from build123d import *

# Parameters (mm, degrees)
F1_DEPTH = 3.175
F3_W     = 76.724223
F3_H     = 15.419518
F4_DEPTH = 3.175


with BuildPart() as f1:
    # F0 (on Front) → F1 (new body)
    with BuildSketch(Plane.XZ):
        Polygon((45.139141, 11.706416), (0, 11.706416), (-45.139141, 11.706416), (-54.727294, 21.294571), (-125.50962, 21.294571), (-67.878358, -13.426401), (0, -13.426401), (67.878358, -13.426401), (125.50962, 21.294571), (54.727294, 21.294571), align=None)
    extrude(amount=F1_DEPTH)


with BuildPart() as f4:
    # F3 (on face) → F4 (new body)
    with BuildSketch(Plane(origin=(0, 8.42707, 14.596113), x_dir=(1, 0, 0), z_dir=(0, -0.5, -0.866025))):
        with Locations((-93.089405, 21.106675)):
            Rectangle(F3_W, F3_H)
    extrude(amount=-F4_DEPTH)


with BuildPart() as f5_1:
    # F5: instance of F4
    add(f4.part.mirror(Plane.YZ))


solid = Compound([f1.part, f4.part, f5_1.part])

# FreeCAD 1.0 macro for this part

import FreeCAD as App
import Part
import Sketcher

V = App.Vector
Q = App.Units.Quantity

doc = App.newDocument("Part")
body = doc.addObject("PartDesign::Body", "Body")

# Sketch on XZ plane
sketch1 = body.newObject("Sketcher::SketchObject", "Sketch")
sketch1.AttachmentSupport = (doc.getObject("XZ_Plane"), [""])
sketch1.MapMode = "FlatFace"
sketch1.addGeometry(Part.LineSegment(V(45, 12, 0), V(-45, 12, 0)), False)
sketch1.addGeometry(Part.LineSegment(V(-45, 12, 0), V(-55, 21, 0)), False)
sketch1.addGeometry(Part.LineSegment(V(-55, 21, 0), V(-126, 21, 0)), False)
sketch1.addGeometry(Part.LineSegment(V(-126, 21, 0), V(-68, -13, 0)), False)
sketch1.addGeometry(Part.LineSegment(V(-68, -13, 0), V(68, -13, 0)), False)
sketch1.addGeometry(Part.LineSegment(V(68, -13, 0), V(126, 21, 0)), False)
sketch1.addGeometry(Part.LineSegment(V(126, 21, 0), V(55, 21, 0)), False)
sketch1.addGeometry(Part.LineSegment(V(55, 21, 0), V(45, 12, 0)), False)
sketch1.addConstraint(Sketcher.Constraint("Coincident", 0, 2, 1, 1))
sketch1.addConstraint(Sketcher.Constraint("Coincident", 1, 2, 2, 1))
sketch1.addConstraint(Sketcher.Constraint("Coincident", 2, 2, 3, 1))
sketch1.addConstraint(Sketcher.Constraint("Coincident", 3, 2, 4, 1))
sketch1.addConstraint(Sketcher.Constraint("Coincident", 4, 2, 5, 1))
sketch1.addConstraint(Sketcher.Constraint("Coincident", 5, 2, 6, 1))
sketch1.addConstraint(Sketcher.Constraint("Coincident", 6, 2, 7, 1))
sketch1.addConstraint(Sketcher.Constraint("Coincident", 7, 2, 0, 1))
sketch1.addConstraint(Sketcher.Constraint("Horizontal", 0))
sketch1.addConstraint(Sketcher.Constraint("Horizontal", 2))
sketch1.addConstraint(Sketcher.Constraint("Horizontal", 4))
sketch1.addConstraint(Sketcher.Constraint("Horizontal", 6))
sketch1.addConstraint(Sketcher.Constraint("Symmetric", 2, 2, 5, 2, -2))
sketch1.addConstraint(Sketcher.Constraint("Perpendicular", 1, 7))
sketch1.addConstraint(Sketcher.Constraint("Equal", 2, 6))
sketch1.addConstraint(Sketcher.Constraint("Equal", 3, 5))
sketch1.addConstraint(Sketcher.Constraint("Equal", 1, 7))
sketch1.addConstraint(Sketcher.Constraint("DistanceX", 2, 2, 4, 2, Q("7.6136999 in")))
sketch1.addConstraint(Sketcher.Constraint("DistanceY", 3, 2, -1, 1, Q("13.426401 mm")))
sketch1.addConstraint(Sketcher.Constraint("DistanceX", 0, 2, 4, 2, Q("113.017499 mm")))
sketch1.addConstraint(Sketcher.Constraint("DistanceX", 0, 2, 0, 1, Q("90.278282 mm")))
sketch1.addConstraint(Sketcher.Constraint("DistanceX", 2, 2, 2, 1, Q("70.782326 mm")))
sketch1.addConstraint(Sketcher.Constraint("DistanceY", -1, 1, 1, 2, Q("21.294571 mm")))
pad1 = body.newObject("PartDesign::Pad", "Pad")
pad1.Profile = sketch1
pad1.Length = Q("0.125 in")
body2 = doc.addObject("PartDesign::Body", "Body001")

# Sketch on an angled plane
sketch2 = body2.newObject("Sketcher::SketchObject", "Sketch001")
sketch2.Placement = App.Placement(V(0, 8.42707, 14.596113), App.Rotation(V(1, 0, 0), V(0, -0.866025303, 0.500000175), V(0, -0.500000175, -0.866025303), "ZXY"))
sketch2.addGeometry(Part.LineSegment(V(-131, 29, 0), V(-131, 13, 0)), False)
sketch2.addGeometry(Part.LineSegment(V(-131, 13, 0), V(-55, 13, 0)), False)
sketch2.addGeometry(Part.LineSegment(V(-55, 13, 0), V(-55, 29, 0)), False)
sketch2.addGeometry(Part.LineSegment(V(-55, 29, 0), V(-131, 29, 0)), False)
sketch2.addConstraint(Sketcher.Constraint("Coincident", 0, 2, 1, 1))
sketch2.addConstraint(Sketcher.Constraint("Coincident", 1, 2, 2, 1))
sketch2.addConstraint(Sketcher.Constraint("Coincident", 2, 2, 3, 1))
sketch2.addConstraint(Sketcher.Constraint("Coincident", 3, 2, 0, 1))
sketch2.addConstraint(Sketcher.Constraint("Vertical", 0))
sketch2.addConstraint(Sketcher.Constraint("Horizontal", 1))
sketch2.addConstraint(Sketcher.Constraint("Vertical", 2))
sketch2.addConstraint(Sketcher.Constraint("Horizontal", 3))
sketch2.addConstraint(Sketcher.Constraint("DistanceY", 0, 2, 0, 1, Q("15.419518 mm")))
sketch2.addConstraint(Sketcher.Constraint("DistanceX", 1, 1, 1, 2, Q("76.724223 mm")))
sketch2.addConstraint(Sketcher.Constraint("DistanceX", 0, 2, -1, 1, Q("131.451516 mm")))
sketch2.addConstraint(Sketcher.Constraint("DistanceY", -1, 1, 0, 2, Q("13.396916 mm")))
pad2 = body2.newObject("PartDesign::Pad", "Pad001")
pad2.Profile = sketch2
pad2.Length = Q("0.125 in")
pad2.Reversed = True
body3 = doc.addObject("PartDesign::Body", "Body002")
doc.recompute()

mirroring = doc.addObject("Part::Mirroring", "Mirroring")
mirroring.Source = body2
mirroring.Base = V(0, 0, 0)
mirroring.Normal = V(1, 0, 0)
body3.BaseFeature = mirroring
doc.recompute()
mirroring.Visibility = False

doc.recompute()
